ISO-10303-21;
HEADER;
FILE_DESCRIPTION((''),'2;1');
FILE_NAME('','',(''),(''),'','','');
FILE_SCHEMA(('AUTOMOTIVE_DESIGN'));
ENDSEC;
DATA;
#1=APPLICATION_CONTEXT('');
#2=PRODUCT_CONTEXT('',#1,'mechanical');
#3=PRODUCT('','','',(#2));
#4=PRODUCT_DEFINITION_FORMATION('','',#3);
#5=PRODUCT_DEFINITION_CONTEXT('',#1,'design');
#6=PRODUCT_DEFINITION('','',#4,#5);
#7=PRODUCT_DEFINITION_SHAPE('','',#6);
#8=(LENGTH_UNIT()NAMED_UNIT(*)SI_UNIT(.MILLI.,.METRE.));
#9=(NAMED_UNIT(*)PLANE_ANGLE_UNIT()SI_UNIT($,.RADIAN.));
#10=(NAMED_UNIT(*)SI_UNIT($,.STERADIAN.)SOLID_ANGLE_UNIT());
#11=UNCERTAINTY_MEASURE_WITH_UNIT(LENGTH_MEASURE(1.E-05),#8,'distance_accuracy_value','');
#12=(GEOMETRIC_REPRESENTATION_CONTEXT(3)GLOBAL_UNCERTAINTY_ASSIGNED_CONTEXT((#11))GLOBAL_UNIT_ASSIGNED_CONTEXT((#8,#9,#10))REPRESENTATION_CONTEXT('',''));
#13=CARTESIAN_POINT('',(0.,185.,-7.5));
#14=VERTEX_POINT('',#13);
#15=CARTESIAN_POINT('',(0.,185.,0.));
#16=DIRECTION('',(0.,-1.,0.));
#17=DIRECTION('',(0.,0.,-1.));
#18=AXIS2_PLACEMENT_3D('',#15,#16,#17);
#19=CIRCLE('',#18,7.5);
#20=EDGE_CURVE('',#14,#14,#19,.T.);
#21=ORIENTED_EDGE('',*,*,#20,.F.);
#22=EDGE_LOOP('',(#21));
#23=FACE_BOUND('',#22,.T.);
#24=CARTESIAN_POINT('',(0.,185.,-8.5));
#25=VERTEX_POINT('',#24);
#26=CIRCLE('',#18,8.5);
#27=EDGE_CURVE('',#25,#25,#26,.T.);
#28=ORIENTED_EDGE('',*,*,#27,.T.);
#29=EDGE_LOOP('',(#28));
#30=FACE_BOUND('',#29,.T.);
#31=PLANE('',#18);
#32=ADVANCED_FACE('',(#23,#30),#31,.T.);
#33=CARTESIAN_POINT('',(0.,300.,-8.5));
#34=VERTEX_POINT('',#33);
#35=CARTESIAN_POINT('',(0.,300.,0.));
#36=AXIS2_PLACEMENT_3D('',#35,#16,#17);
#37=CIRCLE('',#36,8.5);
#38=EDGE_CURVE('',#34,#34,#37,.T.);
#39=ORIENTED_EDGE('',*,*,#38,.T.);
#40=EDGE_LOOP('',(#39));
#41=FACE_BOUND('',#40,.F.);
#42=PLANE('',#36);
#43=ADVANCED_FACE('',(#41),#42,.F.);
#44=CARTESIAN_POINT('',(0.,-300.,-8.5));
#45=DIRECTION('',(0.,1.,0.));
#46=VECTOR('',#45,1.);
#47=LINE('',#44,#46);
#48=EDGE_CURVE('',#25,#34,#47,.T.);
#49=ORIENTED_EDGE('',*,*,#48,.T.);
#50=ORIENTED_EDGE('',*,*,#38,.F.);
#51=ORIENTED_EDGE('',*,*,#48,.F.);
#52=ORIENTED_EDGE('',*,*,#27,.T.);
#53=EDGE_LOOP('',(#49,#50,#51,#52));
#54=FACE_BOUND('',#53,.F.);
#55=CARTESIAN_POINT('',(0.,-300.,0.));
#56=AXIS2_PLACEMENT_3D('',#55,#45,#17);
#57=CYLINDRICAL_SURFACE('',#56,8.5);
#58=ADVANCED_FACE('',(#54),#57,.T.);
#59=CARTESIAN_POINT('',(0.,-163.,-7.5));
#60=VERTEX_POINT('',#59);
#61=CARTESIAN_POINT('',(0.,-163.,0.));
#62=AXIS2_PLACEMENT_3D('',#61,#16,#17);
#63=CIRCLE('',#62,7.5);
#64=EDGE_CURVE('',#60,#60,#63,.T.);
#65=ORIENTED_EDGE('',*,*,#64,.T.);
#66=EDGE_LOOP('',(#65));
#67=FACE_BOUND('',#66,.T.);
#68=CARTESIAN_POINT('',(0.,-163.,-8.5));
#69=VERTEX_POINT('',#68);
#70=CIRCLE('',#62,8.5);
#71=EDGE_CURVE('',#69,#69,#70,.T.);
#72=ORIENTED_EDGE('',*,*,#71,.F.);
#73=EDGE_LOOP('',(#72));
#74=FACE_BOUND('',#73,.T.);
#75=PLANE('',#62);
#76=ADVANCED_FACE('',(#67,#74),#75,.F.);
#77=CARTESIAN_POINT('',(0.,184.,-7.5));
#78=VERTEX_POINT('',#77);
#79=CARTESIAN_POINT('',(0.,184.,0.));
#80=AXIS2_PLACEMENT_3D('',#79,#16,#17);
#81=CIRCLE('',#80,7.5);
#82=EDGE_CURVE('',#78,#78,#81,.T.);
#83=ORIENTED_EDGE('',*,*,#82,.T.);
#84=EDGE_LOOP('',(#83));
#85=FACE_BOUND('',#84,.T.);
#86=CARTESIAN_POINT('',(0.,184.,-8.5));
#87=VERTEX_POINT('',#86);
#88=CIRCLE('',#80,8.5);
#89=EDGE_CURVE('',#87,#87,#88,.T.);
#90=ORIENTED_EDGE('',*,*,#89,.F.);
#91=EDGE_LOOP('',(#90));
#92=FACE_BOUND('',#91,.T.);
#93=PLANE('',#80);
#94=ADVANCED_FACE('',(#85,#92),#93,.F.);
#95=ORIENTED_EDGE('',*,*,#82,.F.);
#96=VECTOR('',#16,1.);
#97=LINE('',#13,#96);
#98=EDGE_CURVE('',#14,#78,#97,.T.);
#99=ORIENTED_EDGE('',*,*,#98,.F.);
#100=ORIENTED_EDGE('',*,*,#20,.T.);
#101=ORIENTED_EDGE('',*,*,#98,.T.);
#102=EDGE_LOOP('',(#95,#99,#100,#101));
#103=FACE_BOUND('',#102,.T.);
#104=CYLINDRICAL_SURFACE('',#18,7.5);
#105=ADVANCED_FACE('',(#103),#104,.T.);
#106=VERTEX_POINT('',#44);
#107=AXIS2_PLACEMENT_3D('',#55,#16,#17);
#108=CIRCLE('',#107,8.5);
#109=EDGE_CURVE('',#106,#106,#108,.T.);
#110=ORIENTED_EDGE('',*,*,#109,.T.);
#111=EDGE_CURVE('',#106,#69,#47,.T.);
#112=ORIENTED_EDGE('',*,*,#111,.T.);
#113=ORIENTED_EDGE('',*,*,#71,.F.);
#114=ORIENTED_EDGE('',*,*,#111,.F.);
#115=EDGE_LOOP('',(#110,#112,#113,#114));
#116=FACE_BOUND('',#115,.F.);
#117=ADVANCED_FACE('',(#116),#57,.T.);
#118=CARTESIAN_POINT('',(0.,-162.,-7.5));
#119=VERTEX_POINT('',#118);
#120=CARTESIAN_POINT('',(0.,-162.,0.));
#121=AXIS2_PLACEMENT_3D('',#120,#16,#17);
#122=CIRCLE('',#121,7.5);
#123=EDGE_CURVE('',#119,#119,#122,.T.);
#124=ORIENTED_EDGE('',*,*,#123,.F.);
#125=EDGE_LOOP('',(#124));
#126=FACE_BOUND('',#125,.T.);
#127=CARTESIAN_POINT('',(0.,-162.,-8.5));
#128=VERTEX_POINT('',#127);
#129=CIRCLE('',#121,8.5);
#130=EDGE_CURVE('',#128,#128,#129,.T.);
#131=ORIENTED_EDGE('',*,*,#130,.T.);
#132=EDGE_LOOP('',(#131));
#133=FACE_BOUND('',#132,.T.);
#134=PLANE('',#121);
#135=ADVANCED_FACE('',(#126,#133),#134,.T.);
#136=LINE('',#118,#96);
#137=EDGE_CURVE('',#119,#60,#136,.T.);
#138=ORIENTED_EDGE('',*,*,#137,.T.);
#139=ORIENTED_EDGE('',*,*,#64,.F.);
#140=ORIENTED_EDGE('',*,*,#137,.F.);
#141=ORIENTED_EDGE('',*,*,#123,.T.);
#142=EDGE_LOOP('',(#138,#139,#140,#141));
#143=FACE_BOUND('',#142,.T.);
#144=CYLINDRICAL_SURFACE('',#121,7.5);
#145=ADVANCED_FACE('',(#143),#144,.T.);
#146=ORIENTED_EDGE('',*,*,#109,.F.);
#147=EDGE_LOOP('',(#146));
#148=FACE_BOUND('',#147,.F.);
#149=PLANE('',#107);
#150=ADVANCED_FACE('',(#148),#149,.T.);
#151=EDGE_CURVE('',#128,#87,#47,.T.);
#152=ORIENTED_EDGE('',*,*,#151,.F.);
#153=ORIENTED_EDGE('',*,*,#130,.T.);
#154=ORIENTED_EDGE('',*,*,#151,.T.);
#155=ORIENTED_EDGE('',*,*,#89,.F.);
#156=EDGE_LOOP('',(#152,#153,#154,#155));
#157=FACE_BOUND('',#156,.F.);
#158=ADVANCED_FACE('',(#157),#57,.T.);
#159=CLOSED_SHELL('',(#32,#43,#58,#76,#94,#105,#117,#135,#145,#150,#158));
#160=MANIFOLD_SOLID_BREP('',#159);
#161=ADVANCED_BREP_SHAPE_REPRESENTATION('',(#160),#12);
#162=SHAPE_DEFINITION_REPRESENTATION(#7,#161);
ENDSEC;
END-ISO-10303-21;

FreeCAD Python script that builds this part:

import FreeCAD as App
import Part
import Sketcher

V = App.Vector


def add_polygon(sketch, points):
    """Adds a closed chain of lines whose ends are joined by coincident constraints."""
    first, n = sketch.GeometryCount, len(points)
    for a, b in zip(points, points[1:] + points[:1]):
        sketch.addGeometry(Part.LineSegment(App.Vector(*a, 0), App.Vector(*b, 0)), False)
    for i in range(n):
        sketch.addConstraint(Sketcher.Constraint("Coincident", first + i, 2, first + (i + 1) % n, 1))

doc = App.newDocument("Part")
params = doc.addObject("Spreadsheet::Sheet", "Params")
for row, (alias, value) in enumerate([
    ("sketch1_width", "600 mm"),
    ("sketch1_width2", "1 mm"),
    ("sketch1_width3", "115 mm"),
    ("sketch1_height", "8.5 mm"),
    ("revolution_angle", "360 deg"),
], start=1):
    params.set(f"A{row}", alias)
    params.set(f"B{row}", "=" + value)
    params.setAlias(f"B{row}", alias)

body = doc.addObject("PartDesign::Body", "Body")

# Sketch on YZ plane
sketch1 = body.newObject("Sketcher::SketchObject", "Sketch")
sketch1.AttachmentSupport = (doc.getObject("YZ_Plane"), [""])
sketch1.MapMode = "FlatFace"
add_polygon(sketch1, [(300, -8.5), (300, 0), (-300, 0), (-300, -8.5), (-163, -8.5), (-163, -7.5), (-162, -7.5), (-162, -8.5), (184, -8.5), (184, -7.5), (185, -7.5), (185, -8.5)])  # lines 0-11
sketch1.addConstraint([
    Sketcher.Constraint("Vertical", 0),
    Sketcher.Constraint("Horizontal", 1),
    Sketcher.Constraint("Vertical", 2),
    Sketcher.Constraint("Horizontal", 3),
    Sketcher.Constraint("Vertical", 4),
    Sketcher.Constraint("Horizontal", 5),
    Sketcher.Constraint("Vertical", 6),
    Sketcher.Constraint("Horizontal", 7),
    Sketcher.Constraint("Vertical", 8),
    Sketcher.Constraint("Horizontal", 9),
    Sketcher.Constraint("Vertical", 10),
    Sketcher.Constraint("Horizontal", 11),
    Sketcher.Constraint("Symmetric", 0, 2, 1, 2, -1, 1),
    Sketcher.Constraint("Horizontal", 3, 2, 6, 2),
    Sketcher.Constraint("Horizontal", 5, 2, 8, 2),
    Sketcher.Constraint("Horizontal", 7, 2, 10, 2),
    Sketcher.Constraint("Equal", 5, 9),
    Sketcher.Constraint("Equal", 9, 4),
    Sketcher.Constraint("DistanceX", 1, 2, 1, 1, 600.0),
    Sketcher.Constraint("DistanceX", 5, 1, 5, 2, 1.0),
    Sketcher.Constraint("DistanceX", 11, 1, 11, 2, 115.0),
    Sketcher.Constraint("DistanceY", 0, 1, 0, 2, 8.5),
    Sketcher.Constraint("DistanceX", 5, 2, 0, 2, 462.0),
])
sketch1.setExpression("Constraints[30]", "Params.sketch1_width")
sketch1.setExpression("Constraints[31]", "Params.sketch1_width2")
sketch1.setExpression("Constraints[32]", "Params.sketch1_width3")
sketch1.setExpression("Constraints[33]", "Params.sketch1_height")
revolution = body.newObject("PartDesign::Revolution", "Revolution")
revolution.Profile = sketch1
revolution.ReferenceAxis = (sketch1, ["H_Axis"])
revolution.setExpression("Angle", "Params.revolution_angle")

doc.recompute()
